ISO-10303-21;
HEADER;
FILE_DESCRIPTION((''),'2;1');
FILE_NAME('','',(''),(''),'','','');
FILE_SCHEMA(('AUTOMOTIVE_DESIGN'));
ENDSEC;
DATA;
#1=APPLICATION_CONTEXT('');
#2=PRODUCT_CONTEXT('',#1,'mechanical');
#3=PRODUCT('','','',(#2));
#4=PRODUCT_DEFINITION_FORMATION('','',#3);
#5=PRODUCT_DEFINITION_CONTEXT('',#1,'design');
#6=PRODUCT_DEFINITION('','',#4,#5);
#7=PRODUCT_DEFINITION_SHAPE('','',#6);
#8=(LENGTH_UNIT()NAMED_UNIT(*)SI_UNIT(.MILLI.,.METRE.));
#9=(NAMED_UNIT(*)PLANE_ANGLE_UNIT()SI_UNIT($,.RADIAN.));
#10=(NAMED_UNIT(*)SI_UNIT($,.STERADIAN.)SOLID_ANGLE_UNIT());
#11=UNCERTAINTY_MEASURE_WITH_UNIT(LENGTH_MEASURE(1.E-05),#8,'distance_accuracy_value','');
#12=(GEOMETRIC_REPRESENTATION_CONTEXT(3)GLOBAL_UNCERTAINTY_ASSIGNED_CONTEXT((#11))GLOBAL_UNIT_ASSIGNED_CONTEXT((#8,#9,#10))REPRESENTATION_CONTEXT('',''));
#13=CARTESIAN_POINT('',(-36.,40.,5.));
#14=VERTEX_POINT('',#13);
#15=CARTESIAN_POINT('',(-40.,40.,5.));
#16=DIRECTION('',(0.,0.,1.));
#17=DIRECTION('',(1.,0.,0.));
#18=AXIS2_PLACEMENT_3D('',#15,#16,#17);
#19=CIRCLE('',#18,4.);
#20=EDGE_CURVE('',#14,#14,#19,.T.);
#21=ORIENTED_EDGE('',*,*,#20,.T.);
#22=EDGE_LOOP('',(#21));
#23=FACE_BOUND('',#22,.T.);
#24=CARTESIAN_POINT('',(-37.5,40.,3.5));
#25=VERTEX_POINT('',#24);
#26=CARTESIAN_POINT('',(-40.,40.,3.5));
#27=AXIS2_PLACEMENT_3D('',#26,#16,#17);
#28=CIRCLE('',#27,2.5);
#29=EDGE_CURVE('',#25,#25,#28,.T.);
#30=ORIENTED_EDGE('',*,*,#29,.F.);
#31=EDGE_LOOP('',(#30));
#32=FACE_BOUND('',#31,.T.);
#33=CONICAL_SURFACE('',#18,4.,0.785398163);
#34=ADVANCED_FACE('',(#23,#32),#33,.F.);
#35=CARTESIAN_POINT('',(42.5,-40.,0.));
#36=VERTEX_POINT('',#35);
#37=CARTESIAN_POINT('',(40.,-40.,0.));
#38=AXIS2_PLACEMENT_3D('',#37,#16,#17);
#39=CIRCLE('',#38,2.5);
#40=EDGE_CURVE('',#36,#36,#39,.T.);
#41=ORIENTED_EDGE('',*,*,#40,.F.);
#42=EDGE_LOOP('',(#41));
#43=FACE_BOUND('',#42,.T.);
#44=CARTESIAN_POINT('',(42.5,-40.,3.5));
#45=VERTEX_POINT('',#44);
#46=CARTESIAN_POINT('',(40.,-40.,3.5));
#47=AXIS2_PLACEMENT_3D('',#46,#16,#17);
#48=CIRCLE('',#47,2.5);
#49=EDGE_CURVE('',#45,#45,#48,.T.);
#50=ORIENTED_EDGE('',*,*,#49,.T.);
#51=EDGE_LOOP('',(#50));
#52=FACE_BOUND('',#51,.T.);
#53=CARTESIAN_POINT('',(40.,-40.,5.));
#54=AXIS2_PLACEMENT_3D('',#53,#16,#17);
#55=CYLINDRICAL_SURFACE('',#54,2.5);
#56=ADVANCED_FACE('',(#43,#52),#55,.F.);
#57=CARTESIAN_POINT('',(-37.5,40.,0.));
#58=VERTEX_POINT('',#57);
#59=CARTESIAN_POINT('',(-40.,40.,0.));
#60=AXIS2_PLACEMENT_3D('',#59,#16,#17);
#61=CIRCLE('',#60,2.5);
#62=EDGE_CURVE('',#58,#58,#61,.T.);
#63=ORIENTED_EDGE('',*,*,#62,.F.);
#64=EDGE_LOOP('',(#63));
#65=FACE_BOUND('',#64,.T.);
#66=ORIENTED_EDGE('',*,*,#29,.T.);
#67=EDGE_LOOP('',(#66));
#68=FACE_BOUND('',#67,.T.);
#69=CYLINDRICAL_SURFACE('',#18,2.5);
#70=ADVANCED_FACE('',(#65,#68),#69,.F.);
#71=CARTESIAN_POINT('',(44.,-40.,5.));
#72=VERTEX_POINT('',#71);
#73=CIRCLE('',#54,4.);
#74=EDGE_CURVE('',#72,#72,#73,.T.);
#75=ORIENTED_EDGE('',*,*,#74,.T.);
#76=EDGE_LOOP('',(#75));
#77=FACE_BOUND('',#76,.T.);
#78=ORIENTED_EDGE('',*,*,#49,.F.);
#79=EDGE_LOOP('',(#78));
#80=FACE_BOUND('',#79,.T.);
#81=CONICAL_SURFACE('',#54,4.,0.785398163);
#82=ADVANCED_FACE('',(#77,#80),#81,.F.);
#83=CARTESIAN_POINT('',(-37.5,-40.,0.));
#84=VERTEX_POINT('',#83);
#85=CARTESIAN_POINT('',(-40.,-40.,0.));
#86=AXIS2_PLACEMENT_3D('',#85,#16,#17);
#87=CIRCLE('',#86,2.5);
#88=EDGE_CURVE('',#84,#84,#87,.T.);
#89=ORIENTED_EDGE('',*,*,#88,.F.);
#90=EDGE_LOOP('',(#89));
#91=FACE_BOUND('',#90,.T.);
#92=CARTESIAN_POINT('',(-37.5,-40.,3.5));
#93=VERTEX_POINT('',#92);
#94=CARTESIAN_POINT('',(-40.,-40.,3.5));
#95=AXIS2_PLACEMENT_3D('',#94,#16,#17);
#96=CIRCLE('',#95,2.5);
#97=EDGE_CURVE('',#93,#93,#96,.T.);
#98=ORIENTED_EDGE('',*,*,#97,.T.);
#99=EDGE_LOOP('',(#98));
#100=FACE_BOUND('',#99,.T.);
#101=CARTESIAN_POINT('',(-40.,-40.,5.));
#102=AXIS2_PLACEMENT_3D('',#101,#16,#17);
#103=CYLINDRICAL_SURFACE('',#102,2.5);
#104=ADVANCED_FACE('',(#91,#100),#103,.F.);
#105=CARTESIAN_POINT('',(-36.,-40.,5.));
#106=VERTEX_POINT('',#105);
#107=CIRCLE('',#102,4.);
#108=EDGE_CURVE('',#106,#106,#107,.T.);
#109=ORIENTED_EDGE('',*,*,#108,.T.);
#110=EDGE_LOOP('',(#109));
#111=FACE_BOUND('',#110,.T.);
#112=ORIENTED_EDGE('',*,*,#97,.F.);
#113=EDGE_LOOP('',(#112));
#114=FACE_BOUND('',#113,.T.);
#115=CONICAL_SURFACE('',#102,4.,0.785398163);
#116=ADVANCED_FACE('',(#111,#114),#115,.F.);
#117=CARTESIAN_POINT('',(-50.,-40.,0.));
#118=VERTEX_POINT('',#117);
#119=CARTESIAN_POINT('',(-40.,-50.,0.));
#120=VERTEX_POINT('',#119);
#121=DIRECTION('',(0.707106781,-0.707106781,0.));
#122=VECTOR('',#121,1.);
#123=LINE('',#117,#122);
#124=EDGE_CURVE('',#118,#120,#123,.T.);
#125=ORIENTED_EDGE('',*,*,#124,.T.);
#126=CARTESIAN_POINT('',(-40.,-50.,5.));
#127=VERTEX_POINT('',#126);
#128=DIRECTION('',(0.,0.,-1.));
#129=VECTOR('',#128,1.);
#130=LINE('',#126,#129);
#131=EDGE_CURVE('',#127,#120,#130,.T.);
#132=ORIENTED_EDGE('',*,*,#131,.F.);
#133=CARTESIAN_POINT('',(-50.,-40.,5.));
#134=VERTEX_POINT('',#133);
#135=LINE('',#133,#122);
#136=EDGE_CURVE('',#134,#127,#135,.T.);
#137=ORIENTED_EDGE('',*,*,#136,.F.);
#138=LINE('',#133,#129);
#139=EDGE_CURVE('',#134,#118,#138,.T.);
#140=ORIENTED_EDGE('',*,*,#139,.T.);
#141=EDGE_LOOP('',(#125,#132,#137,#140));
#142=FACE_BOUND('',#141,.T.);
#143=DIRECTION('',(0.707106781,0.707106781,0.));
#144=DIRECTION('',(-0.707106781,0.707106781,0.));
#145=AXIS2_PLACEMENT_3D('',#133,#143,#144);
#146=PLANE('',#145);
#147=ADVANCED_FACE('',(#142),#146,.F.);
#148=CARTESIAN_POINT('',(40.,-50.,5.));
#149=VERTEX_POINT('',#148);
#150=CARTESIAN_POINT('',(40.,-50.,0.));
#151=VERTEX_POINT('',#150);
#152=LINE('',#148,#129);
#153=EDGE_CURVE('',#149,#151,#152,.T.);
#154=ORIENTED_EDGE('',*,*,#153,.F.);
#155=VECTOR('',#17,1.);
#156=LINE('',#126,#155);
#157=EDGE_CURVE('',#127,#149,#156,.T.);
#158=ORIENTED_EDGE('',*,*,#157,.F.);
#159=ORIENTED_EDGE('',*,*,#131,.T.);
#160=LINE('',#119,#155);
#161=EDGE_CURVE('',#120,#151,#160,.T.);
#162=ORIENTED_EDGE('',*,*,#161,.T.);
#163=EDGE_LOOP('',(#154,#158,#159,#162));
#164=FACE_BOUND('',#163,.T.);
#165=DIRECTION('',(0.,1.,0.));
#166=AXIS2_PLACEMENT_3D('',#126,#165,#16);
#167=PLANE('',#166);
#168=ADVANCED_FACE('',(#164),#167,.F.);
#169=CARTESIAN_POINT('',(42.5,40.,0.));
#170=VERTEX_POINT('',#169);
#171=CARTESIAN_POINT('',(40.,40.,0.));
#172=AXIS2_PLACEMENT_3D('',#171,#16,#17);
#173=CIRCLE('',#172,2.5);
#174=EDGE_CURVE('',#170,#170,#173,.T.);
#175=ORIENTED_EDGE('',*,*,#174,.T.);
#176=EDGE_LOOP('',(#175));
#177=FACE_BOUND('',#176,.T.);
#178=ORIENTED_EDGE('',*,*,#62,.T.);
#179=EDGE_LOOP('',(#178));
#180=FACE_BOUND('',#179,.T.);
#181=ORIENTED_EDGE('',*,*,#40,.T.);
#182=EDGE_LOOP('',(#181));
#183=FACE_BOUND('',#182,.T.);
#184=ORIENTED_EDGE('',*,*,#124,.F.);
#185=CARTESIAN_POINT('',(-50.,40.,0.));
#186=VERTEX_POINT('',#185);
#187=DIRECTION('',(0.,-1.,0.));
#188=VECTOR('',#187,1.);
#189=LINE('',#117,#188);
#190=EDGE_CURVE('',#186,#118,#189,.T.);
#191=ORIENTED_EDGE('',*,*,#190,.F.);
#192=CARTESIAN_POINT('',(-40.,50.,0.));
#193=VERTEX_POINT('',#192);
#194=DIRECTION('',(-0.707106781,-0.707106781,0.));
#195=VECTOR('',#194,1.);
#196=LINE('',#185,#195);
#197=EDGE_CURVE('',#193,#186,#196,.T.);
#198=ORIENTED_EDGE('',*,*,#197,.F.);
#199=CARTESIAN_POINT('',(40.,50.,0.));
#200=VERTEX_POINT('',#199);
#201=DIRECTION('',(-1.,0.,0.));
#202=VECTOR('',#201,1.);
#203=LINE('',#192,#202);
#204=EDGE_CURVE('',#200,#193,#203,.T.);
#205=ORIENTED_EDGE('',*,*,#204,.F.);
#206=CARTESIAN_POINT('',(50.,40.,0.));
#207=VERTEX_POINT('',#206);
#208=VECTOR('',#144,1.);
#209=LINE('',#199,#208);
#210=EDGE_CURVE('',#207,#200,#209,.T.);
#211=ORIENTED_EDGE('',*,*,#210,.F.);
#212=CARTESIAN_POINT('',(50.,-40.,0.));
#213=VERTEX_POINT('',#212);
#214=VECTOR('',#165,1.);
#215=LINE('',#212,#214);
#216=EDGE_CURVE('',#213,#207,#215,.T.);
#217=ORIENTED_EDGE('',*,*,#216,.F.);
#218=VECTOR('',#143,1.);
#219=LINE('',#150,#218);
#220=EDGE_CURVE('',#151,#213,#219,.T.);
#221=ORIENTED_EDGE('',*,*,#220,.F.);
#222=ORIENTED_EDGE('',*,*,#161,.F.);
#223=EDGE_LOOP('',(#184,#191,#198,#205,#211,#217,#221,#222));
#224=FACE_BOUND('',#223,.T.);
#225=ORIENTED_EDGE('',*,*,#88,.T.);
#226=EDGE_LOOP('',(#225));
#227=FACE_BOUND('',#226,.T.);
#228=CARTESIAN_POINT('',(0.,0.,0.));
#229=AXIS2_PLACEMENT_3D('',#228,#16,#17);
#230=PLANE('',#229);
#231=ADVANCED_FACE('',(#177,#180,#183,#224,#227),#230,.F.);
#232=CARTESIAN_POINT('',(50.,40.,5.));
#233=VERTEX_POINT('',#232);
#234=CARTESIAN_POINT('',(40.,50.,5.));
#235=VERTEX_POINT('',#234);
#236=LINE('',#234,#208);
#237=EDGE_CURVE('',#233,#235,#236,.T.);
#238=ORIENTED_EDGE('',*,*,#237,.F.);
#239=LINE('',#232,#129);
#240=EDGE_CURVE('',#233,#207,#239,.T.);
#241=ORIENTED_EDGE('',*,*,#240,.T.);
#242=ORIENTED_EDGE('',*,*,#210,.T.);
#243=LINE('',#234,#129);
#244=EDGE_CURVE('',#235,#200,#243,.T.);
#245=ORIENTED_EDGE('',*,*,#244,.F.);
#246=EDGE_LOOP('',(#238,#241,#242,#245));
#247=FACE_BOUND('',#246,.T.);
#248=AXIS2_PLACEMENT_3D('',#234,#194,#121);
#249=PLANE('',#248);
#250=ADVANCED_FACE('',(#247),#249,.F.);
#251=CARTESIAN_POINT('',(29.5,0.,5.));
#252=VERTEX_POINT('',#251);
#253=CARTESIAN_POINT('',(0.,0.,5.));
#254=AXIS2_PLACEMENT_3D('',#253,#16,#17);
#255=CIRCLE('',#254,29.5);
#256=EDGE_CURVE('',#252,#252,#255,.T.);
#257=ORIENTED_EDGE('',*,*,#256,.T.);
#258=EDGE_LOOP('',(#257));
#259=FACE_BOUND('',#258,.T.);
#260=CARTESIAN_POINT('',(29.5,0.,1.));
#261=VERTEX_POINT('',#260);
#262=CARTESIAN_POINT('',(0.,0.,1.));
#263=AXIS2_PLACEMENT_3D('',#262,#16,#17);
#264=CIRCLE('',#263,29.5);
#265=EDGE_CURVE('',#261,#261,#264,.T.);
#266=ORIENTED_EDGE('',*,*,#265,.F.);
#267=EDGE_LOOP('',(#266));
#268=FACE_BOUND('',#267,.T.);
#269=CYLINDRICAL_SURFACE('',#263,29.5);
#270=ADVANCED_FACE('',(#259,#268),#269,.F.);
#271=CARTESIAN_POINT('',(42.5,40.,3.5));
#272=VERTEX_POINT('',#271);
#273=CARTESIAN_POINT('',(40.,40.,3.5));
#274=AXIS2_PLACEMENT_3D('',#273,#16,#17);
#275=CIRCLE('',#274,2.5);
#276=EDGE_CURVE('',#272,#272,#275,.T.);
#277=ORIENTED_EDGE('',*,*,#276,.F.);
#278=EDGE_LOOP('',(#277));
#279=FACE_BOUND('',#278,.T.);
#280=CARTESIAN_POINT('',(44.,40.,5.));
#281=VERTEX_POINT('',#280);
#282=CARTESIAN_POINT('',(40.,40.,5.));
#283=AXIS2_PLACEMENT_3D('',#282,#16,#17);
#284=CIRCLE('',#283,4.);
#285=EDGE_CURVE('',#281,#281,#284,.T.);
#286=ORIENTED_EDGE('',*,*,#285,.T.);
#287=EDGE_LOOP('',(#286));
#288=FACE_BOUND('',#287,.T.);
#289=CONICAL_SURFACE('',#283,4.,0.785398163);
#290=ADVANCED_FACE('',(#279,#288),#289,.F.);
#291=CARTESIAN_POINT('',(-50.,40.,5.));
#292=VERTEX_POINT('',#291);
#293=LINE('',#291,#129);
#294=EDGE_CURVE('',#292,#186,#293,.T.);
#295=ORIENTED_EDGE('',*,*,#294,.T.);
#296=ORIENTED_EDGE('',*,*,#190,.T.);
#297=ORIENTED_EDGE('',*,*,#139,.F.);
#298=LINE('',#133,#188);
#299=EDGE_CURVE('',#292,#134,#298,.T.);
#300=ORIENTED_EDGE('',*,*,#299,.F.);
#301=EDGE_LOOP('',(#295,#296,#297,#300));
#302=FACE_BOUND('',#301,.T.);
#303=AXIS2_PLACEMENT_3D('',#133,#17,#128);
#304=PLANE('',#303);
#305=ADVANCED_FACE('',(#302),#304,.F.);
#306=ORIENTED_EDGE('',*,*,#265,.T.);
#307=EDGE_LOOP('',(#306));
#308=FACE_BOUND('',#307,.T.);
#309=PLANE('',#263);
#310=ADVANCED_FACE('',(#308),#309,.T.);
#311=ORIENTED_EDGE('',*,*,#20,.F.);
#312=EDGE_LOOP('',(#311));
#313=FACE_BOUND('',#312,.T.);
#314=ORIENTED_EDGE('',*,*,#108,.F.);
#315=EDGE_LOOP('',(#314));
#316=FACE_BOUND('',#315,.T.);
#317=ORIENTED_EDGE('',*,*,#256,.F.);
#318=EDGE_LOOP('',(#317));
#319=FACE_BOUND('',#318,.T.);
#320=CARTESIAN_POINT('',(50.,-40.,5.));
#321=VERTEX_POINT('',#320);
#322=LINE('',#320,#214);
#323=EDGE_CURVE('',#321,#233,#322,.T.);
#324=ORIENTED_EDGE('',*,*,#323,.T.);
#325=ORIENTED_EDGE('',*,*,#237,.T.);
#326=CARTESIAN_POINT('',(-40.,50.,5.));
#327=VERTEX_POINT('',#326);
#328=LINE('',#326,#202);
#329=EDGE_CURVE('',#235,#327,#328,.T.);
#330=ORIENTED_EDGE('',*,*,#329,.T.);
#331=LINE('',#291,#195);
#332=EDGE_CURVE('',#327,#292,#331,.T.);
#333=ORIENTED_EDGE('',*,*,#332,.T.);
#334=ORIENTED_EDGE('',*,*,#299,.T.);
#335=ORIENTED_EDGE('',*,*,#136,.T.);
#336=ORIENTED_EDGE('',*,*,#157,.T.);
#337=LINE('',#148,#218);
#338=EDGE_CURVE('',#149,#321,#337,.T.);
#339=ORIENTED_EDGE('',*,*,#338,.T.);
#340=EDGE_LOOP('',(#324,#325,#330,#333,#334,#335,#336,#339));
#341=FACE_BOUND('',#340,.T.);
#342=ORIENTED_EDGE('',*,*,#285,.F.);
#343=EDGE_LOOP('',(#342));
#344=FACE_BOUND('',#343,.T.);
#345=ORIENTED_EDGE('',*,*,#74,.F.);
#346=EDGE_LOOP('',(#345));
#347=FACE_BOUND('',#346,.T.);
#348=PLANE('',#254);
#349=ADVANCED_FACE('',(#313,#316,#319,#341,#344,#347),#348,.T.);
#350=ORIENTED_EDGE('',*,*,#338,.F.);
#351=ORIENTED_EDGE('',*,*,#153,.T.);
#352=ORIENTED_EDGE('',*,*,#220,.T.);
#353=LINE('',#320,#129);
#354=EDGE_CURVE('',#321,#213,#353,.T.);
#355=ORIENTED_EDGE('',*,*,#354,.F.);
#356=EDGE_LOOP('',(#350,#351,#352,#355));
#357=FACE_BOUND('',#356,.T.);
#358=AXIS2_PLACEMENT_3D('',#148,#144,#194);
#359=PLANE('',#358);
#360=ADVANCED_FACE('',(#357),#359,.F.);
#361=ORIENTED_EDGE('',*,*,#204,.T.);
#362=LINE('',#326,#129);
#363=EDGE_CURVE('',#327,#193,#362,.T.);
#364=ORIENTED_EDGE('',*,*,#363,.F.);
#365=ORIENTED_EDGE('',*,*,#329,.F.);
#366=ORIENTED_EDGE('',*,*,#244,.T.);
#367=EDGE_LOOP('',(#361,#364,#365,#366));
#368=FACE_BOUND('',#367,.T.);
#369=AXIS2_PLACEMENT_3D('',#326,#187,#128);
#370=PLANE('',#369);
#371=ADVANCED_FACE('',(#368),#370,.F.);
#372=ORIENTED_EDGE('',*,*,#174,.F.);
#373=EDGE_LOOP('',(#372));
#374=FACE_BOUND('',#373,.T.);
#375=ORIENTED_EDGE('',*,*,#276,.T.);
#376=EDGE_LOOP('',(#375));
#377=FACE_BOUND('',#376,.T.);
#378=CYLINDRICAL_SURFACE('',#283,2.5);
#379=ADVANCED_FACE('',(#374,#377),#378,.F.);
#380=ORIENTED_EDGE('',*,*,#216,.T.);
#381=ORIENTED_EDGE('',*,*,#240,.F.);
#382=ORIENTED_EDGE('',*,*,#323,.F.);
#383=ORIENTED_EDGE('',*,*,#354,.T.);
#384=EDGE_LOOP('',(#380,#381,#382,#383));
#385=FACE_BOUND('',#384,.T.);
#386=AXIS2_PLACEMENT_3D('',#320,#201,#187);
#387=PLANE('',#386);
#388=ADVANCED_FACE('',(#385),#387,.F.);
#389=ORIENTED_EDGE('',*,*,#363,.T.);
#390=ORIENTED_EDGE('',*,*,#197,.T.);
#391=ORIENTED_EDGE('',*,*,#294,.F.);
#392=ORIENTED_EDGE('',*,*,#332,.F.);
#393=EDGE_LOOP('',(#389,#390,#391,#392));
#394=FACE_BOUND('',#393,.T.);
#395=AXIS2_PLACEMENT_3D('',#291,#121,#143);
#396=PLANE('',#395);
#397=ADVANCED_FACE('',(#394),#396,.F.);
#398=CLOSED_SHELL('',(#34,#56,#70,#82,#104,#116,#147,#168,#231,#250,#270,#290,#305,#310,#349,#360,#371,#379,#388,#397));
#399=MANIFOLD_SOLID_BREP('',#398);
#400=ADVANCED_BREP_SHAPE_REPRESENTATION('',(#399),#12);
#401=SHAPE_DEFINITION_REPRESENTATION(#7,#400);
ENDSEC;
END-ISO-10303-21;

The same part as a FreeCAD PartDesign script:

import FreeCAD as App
import Part
import Sketcher

V = App.Vector


def add_polygon(sketch, points):
    """Adds a closed chain of lines whose ends are joined by coincident constraints."""
    first, n = sketch.GeometryCount, len(points)
    for a, b in zip(points, points[1:] + points[:1]):
        sketch.addGeometry(Part.LineSegment(App.Vector(*a, 0), App.Vector(*b, 0)), False)
    for i in range(n):
        sketch.addConstraint(Sketcher.Constraint("Coincident", first + i, 2, first + (i + 1) % n, 1))

doc = App.newDocument("Part")
params = doc.addObject("Spreadsheet::Sheet", "Params")
for row, (alias, value) in enumerate([
    ("sketch1_width", "80 mm"),
    ("pad1_length", "5 mm"),
    ("sketch2_diameter", "59 mm"),
    ("pocket1_length", "4 mm"),
    ("sketch3_diameter", "5 mm"),
    ("hole_diameter", "5 mm"),
    ("hole_depth", "5 mm"),
    ("hole_csink_diameter", "8 mm"),
], start=1):
    params.set(f"A{row}", alias)
    params.set(f"B{row}", "=" + value)
    params.setAlias(f"B{row}", alias)

body = doc.addObject("PartDesign::Body", "Body")

sketch1 = body.newObject("Sketcher::SketchObject", "Sketch")
sketch1.AttachmentSupport = (doc.getObject("XY_Plane"), [""])
sketch1.MapMode = "FlatFace"
add_polygon(sketch1, [(-40, 50), (-50, 40), (-50, -40), (-40, -50), (40, -50), (50, -40), (50, 40), (40, 50)])
sketch1.addConstraint([
    Sketcher.Constraint("Vertical", 1),
    Sketcher.Constraint("Horizontal", 3),
    Sketcher.Constraint("Vertical", 5),
    Sketcher.Constraint("Horizontal", 7),
    Sketcher.Constraint("Symmetric", 0, 2, 4, 2, -1, 1),
    Sketcher.Constraint("Symmetric", 2, 2, 6, 2, -1, 1),
    Sketcher.Constraint("Perpendicular", 0, 2),
    Sketcher.Constraint("Perpendicular", 2, 4),
    Sketcher.Constraint("Perpendicular", 4, 6),
    Sketcher.Constraint("Horizontal", 1, 2, 4, 2),
    Sketcher.Constraint("Vertical", 3, 2, 6, 2),
    Sketcher.Constraint("Equal", 7, 1),
    Sketcher.Constraint("DistanceX", 3, 1, 3, 2, 80.0),
    Sketcher.Constraint("DistanceX", 0, 2, -1, 1, 50.0),
])
sketch1.setExpression("Constraints[20]", "Params.sketch1_width")
pad1 = body.newObject("PartDesign::Pad", "Pad")
pad1.Profile = sketch1
pad1.setExpression("Length", "Params.pad1_length")

sketch2 = body.newObject("Sketcher::SketchObject", "Sketch001")
sketch2.AttachmentSupport = (doc.getObject("XY_Plane"), [""])
sketch2.MapMode = "FlatFace"
sketch2.AttachmentOffset = App.Placement(V(0, 0, 5), App.Rotation())
sketch2.addGeometry(Part.Circle(V(0, 0, 0), V(0, 0, 1), 30), False)
sketch2.addConstraint([
    Sketcher.Constraint("Coincident", 0, 3, -1, 1),
    Sketcher.Constraint("Diameter", 0, 59.0),
])
sketch2.setExpression("Constraints[1]", "Params.sketch2_diameter")
pocket1 = body.newObject("PartDesign::Pocket", "Pocket")
pocket1.Profile = sketch2
pocket1.setExpression("Length", "Params.pocket1_length")

sketch3 = body.newObject("Sketcher::SketchObject", "Sketch002")
sketch3.AttachmentSupport = (doc.getObject("XY_Plane"), [""])
sketch3.MapMode = "FlatFace"
sketch3.AttachmentOffset = App.Placement(V(0, 0, 5), App.Rotation())
sketch3.addGeometry([
    Part.Circle(V(-40, 40, 0), V(0, 0, 1), 2.5),
    Part.Circle(V(40, 40, 0), V(0, 0, 1), 2.5),
    Part.Circle(V(40, -40, 0), V(0, 0, 1), 2.5),
    Part.Circle(V(-40, -40, 0), V(0, 0, 1), 2.5),
], False)
sketch3.addConstraint([
    Sketcher.Constraint("Equal", 0, 1),
    Sketcher.Constraint("Equal", 1, 2),
    Sketcher.Constraint("Equal", 2, 3),
    Sketcher.Constraint("Symmetric", 0, 3, 2, 3, -1, 1),
    Sketcher.Constraint("Symmetric", 1, 3, 3, 3, -1, 1),
    Sketcher.Constraint("Symmetric", 0, 3, 1, 3, -2),
    Sketcher.Constraint("Diameter", 0, 5.0),
    Sketcher.Constraint("DistanceX", 0, 3, -1, 1, 40.0),
    Sketcher.Constraint("DistanceY", -1, 1, 0, 3, 40.0),
])
sketch3.setExpression("Constraints[6]", "Params.sketch3_diameter")
doc.recompute()
hole = body.newObject("PartDesign::Hole", "Hole")
hole.Profile = sketch3
hole.ThreadType = "None"
hole.setExpression("Diameter", "Params.hole_diameter")
hole.DepthType = "Dimension"
hole.setExpression("Depth", "Params.hole_depth")
hole.DrillPoint = "Flat"
hole.HoleCutType = "Countersink"
hole.setExpression("HoleCutDiameter", "Params.hole_csink_diameter")
hole.HoleCutCountersinkAngle = 90

doc.recompute()
